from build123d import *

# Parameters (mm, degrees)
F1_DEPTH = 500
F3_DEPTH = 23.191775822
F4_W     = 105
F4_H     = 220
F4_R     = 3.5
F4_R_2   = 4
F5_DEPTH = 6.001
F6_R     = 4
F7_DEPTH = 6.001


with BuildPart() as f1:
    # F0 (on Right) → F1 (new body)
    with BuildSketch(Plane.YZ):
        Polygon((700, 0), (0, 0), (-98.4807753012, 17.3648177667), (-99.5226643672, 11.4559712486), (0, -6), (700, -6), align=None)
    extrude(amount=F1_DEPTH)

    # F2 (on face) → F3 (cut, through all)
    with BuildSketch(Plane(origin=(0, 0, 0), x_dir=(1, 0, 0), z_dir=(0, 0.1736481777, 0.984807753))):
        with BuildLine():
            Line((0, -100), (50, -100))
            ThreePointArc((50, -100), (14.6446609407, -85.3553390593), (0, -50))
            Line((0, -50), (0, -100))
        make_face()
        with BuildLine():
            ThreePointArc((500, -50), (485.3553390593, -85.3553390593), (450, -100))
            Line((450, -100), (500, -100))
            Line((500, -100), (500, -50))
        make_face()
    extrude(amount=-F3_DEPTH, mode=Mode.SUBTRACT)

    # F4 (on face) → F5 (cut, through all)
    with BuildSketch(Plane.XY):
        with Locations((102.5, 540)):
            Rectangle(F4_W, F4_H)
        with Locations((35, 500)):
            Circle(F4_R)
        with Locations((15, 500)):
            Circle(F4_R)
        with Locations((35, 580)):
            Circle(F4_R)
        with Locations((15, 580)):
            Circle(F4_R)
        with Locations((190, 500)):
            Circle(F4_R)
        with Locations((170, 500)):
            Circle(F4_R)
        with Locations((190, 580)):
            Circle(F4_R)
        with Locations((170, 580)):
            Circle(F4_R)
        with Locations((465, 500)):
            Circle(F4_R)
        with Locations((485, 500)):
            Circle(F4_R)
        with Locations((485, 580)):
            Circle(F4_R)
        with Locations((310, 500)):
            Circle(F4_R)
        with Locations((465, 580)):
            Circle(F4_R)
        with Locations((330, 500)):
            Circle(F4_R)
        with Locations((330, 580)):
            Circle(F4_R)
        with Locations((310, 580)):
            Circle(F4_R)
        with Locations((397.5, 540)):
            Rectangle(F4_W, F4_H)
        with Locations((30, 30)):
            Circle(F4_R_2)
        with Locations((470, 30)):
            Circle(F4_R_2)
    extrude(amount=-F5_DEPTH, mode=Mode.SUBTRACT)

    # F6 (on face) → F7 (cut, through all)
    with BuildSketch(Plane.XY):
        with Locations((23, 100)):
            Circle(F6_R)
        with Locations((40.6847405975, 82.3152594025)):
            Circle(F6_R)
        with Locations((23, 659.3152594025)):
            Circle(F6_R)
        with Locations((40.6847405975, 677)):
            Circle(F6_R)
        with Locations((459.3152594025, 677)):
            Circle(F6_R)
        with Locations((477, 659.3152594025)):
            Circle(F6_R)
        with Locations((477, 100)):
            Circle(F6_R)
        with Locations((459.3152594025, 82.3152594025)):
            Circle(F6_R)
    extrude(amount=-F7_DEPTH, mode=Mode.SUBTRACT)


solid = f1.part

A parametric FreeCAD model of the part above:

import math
import FreeCAD as App
import Part
import Sketcher
Q = App.Units.Quantity

doc = App.newDocument("Part")
params = doc.addObject("Spreadsheet::Sheet", "Params")
for row, (alias, value) in enumerate([
    ("sketch1_width", "700 mm"),
    ("sketch1_height", "6 mm"),
    ("sketch1_length", "100 mm"),
    ("sketch1_length2", "6 mm"),
    ("pad1_length", "500 mm"),
    ("sketch2_radius", "50 mm"),
    ("sketch3_diameter", "7 mm"),
    ("sketch3_diameter2", "8 mm"),
    ("sketch3_width", "105 mm"),
    ("sketch3_height", "220 mm"),
    ("sketch4_diameter", "8 mm"),
], start=1):
    params.set(f"A{row}", alias)
    params.set(f"B{row}", "=" + value)
    params.setAlias(f"B{row}", alias)

body = doc.addObject("PartDesign::Body", "Body")

# Sketch on YZ plane
sketch1 = body.newObject("Sketcher::SketchObject", "Sketch")
sketch1.AttachmentSupport = (doc.getObject("YZ_Plane"), [""])
sketch1.MapMode = "FlatFace"
sketch1.addGeometry([
    Part.LineSegment(App.Vector(700, 0, 0), App.Vector(0, 0, 0)),  # 0
    Part.LineSegment(App.Vector(0, 0, 0), App.Vector(-98.480775, 17.364818, 0)),  # 1
    Part.LineSegment(App.Vector(-98.480775, 17.364818, 0), App.Vector(-99.522664, 11.455971, 0)),  # 2
    Part.LineSegment(App.Vector(-99.522664, 11.455971, 0), App.Vector(0, -6, 0)),  # 3
    Part.LineSegment(App.Vector(0, -6, 0), App.Vector(700, -6, 0)),  # 4
    Part.LineSegment(App.Vector(700, -6, 0), App.Vector(700, 0, 0)),  # 5
], False)
sketch1.addConstraint([
    Sketcher.Constraint("Coincident", 0, 2, 1, 1),
    Sketcher.Constraint("Coincident", 1, 2, 2, 1),
    Sketcher.Constraint("Coincident", 2, 2, 3, 1),
    Sketcher.Constraint("Coincident", 3, 2, 4, 1),
    Sketcher.Constraint("Coincident", 4, 2, 5, 1),
    Sketcher.Constraint("Coincident", 5, 2, 0, 1),
    Sketcher.Constraint("Horizontal", 0),
    Sketcher.Constraint("Horizontal", 4),
    Sketcher.Constraint("Vertical", 5),
    Sketcher.Constraint("Coincident", 0, 2, -1, 1),
    Sketcher.Constraint("PointOnObject", 3, 2, -2),
    Sketcher.Constraint("Perpendicular", 1, 2),
    Sketcher.Constraint("DistanceX", 0, 2, 0, 1, 700.0),
    Sketcher.Constraint("DistanceY", 5, 1, 5, 2, 6.0),
    Sketcher.Constraint("Angle", 1, Q("170 deg")),
    Sketcher.Constraint("Distance", 1, 100.0),
    Sketcher.Constraint("Distance", 2, 6.0),
])
sketch1.setExpression("Constraints[12]", "Params.sketch1_width")
sketch1.setExpression("Constraints[13]", "Params.sketch1_height")
sketch1.setExpression("Constraints[15]", "Params.sketch1_length")
sketch1.setExpression("Constraints[16]", "Params.sketch1_length2")
pad1 = body.newObject("PartDesign::Pad", "Pad")
pad1.Profile = sketch1
pad1.setExpression("Length", "Params.pad1_length")

# Sketch on an angled plane
sketch2 = body.newObject("Sketcher::SketchObject", "Sketch001")
sketch2.Placement = App.Placement(App.Vector(0, 0, 0), App.Rotation(App.Vector(1, 0, 0), App.Vector(0, 0.984807753, -0.173648178), App.Vector(0, 0.173648178, 0.984807753), "ZXY"))
sketch2.addGeometry([
    Part.LineSegment(App.Vector(0, -100, 0), App.Vector(50, -100, 0)),  # 0
    Part.ArcOfCircle(Part.Circle(App.Vector(50, -50, 0), App.Vector(0, 0, 1), 50), math.radians(180), math.radians(270)),  # 1
    Part.LineSegment(App.Vector(0, -50, 0), App.Vector(0, -100, 0)),  # 2
    Part.ArcOfCircle(Part.Circle(App.Vector(450, -50, 0), App.Vector(0, 0, 1), 50), math.radians(-90), math.radians(0)),  # 3
    Part.LineSegment(App.Vector(450, -100, 0), App.Vector(500, -100, 0)),  # 4
    Part.LineSegment(App.Vector(500, -100, 0), App.Vector(500, -50, 0)),  # 5
], False)
sketch2.addConstraint([
    Sketcher.Constraint("Tangent", 0, 2, 1, 2),
    Sketcher.Constraint("Tangent", 1, 1, 2, 1),
    Sketcher.Constraint("Coincident", 2, 2, 0, 1),
    Sketcher.Constraint("Tangent", 3, 1, 4, 1),
    Sketcher.Constraint("Coincident", 4, 2, 5, 1),
    Sketcher.Constraint("Tangent", 5, 2, 3, 2),
    Sketcher.Constraint("Horizontal", 0),
    Sketcher.Constraint("Vertical", 2),
    Sketcher.Constraint("Horizontal", 4),
    Sketcher.Constraint("Vertical", 5),
    Sketcher.Constraint("Equal", 1, 3),
    Sketcher.Constraint("PointOnObject", 1, 1, -2),
    Sketcher.Constraint("Horizontal", 1, 3, 3, 3),
    Sketcher.Constraint("Radius", 1, 50.0),
    Sketcher.Constraint("DistanceY", 1, 3, -1, 1, 50.0),
    Sketcher.Constraint("DistanceX", -1, 1, 3, 3, 450.0),
])
sketch2.setExpression("Constraints[13]", "Params.sketch2_radius")
pocket1 = body.newObject("PartDesign::Pocket", "Pocket")
pocket1.Profile = sketch2
pocket1.Type = "ThroughAll"

# Sketch on XY plane
sketch3 = body.newObject("Sketcher::SketchObject", "Sketch002")
sketch3.AttachmentSupport = (doc.getObject("XY_Plane"), [""])
sketch3.MapMode = "FlatFace"
sketch3.addGeometry([
    Part.LineSegment(App.Vector(50, 650, 0), App.Vector(50, 430, 0)),  # 0
    Part.LineSegment(App.Vector(50, 430, 0), App.Vector(155, 430, 0)),  # 1
    Part.LineSegment(App.Vector(155, 430, 0), App.Vector(155, 650, 0)),  # 2
    Part.LineSegment(App.Vector(155, 650, 0), App.Vector(50, 650, 0)),  # 3
    Part.Circle(App.Vector(35, 500, 0), App.Vector(0, 0, 1), 3.5),  # 4
    Part.Circle(App.Vector(15, 500, 0), App.Vector(0, 0, 1), 3.5),  # 5
    Part.Circle(App.Vector(35, 580, 0), App.Vector(0, 0, 1), 3.5),  # 6
    Part.Circle(App.Vector(15, 580, 0), App.Vector(0, 0, 1), 3.5),  # 7
    Part.Circle(App.Vector(190, 500, 0), App.Vector(0, 0, 1), 3.5),  # 8
    Part.Circle(App.Vector(170, 500, 0), App.Vector(0, 0, 1), 3.5),  # 9
    Part.Circle(App.Vector(190, 580, 0), App.Vector(0, 0, 1), 3.5),  # 10
    Part.Circle(App.Vector(170, 580, 0), App.Vector(0, 0, 1), 3.5),  # 11
    Part.Circle(App.Vector(465, 500, 0), App.Vector(0, 0, 1), 3.5),  # 12
    Part.Circle(App.Vector(485, 500, 0), App.Vector(0, 0, 1), 3.5),  # 13
    Part.Circle(App.Vector(485, 580, 0), App.Vector(0, 0, 1), 3.5),  # 14
    Part.Circle(App.Vector(310, 500, 0), App.Vector(0, 0, 1), 3.5),  # 15
    Part.Circle(App.Vector(465, 580, 0), App.Vector(0, 0, 1), 3.5),  # 16
    Part.Circle(App.Vector(330, 500, 0), App.Vector(0, 0, 1), 3.5),  # 17
    Part.Circle(App.Vector(330, 580, 0), App.Vector(0, 0, 1), 3.5),  # 18
    Part.Circle(App.Vector(310, 580, 0), App.Vector(0, 0, 1), 3.5),  # 19
    Part.LineSegment(App.Vector(345, 650, 0), App.Vector(345, 430, 0)),  # 20
    Part.LineSegment(App.Vector(345, 430, 0), App.Vector(450, 430, 0)),  # 21
    Part.LineSegment(App.Vector(450, 430, 0), App.Vector(450, 650, 0)),  # 22
    Part.LineSegment(App.Vector(450, 650, 0), App.Vector(345, 650, 0)),  # 23
    Part.Circle(App.Vector(30, 30, 0), App.Vector(0, 0, 1), 4),  # 24
    Part.Circle(App.Vector(470, 30, 0), App.Vector(0, 0, 1), 4),  # 25
], False)
sketch3.addConstraint([
    Sketcher.Constraint("Coincident", 0, 2, 1, 1),
    Sketcher.Constraint("Coincident", 1, 2, 2, 1),
    Sketcher.Constraint("Coincident", 2, 2, 3, 1),
    Sketcher.Constraint("Coincident", 3, 2, 0, 1),
    Sketcher.Constraint("Coincident", 20, 2, 21, 1),
    Sketcher.Constraint("Coincident", 21, 2, 22, 1),
    Sketcher.Constraint("Coincident", 22, 2, 23, 1),
    Sketcher.Constraint("Coincident", 23, 2, 20, 1),
    Sketcher.Constraint("Vertical", 0),
    Sketcher.Constraint("Horizontal", 1),
    Sketcher.Constraint("Vertical", 2),
    Sketcher.Constraint("Horizontal", 3),
    Sketcher.Constraint("Vertical", 20),
    Sketcher.Constraint("Horizontal", 21),
    Sketcher.Constraint("Vertical", 22),
    Sketcher.Constraint("Horizontal", 23),
    Sketcher.Constraint("Equal", 4, 5),
    Sketcher.Constraint("Equal", 5, 6),
    Sketcher.Constraint("Equal", 6, 7),
    Sketcher.Constraint("Equal", 7, 8),
    Sketcher.Constraint("Equal", 8, 9),
    Sketcher.Constraint("Equal", 9, 10),
    Sketcher.Constraint("Equal", 10, 11),
    Sketcher.Constraint("Equal", 11, 12),
    Sketcher.Constraint("Equal", 12, 13),
    Sketcher.Constraint("Equal", 13, 14),
    Sketcher.Constraint("Equal", 14, 15),
    Sketcher.Constraint("Equal", 15, 16),
    Sketcher.Constraint("Equal", 16, 17),
    Sketcher.Constraint("Equal", 17, 18),
    Sketcher.Constraint("Equal", 18, 19),
    Sketcher.Constraint("Equal", 24, 25),
    Sketcher.Constraint("Horizontal", 4, 3, 5, 3),
    Sketcher.Constraint("Horizontal", 6, 3, 7, 3),
    Sketcher.Constraint("Horizontal", 5, 3, 8, 3),
    Sketcher.Constraint("Horizontal", 8, 3, 9, 3),
    Sketcher.Constraint("Horizontal", 7, 3, 10, 3),
    Sketcher.Constraint("Horizontal", 10, 3, 11, 3),
    Sketcher.Constraint("Horizontal", 9, 3, 12, 3),
    Sketcher.Constraint("Horizontal", 12, 3, 13, 3),
    Sketcher.Constraint("Horizontal", 11, 3, 14, 3),
    Sketcher.Constraint("Horizontal", 13, 3, 15, 3),
    Sketcher.Constraint("Horizontal", 14, 3, 16, 3),
    Sketcher.Constraint("Horizontal", 15, 3, 17, 3),
    Sketcher.Constraint("Horizontal", 16, 3, 18, 3),
    Sketcher.Constraint("Horizontal", 18, 3, 19, 3),
    Sketcher.Constraint("Horizontal", 24, 3, 25, 3),
    Sketcher.Constraint("Horizontal", 1, 2, 20, 2),
    Sketcher.Constraint("Horizontal", 3, 2, 22, 2),
    Sketcher.Constraint("Vertical", 4, 3, 6, 3),
    Sketcher.Constraint("Vertical", 5, 3, 7, 3),
    Sketcher.Constraint("Vertical", 8, 3, 10, 3),
    Sketcher.Constraint("Vertical", 9, 3, 11, 3),
    Sketcher.Constraint("Vertical", 13, 3, 14, 3),
    Sketcher.Constraint("Vertical", 12, 3, 16, 3),
    Sketcher.Constraint("Vertical", 17, 3, 18, 3),
    Sketcher.Constraint("Vertical", 15, 3, 19, 3),
    Sketcher.Constraint("Equal", 3, 21),
    Sketcher.Constraint("Diameter", 4, 7.0),
    Sketcher.Constraint("Diameter", 24, 8.0),
    Sketcher.Constraint("DistanceX", 1, 1, 1, 2, 105.0),
    Sketcher.Constraint("DistanceY", 0, 2, 0, 1, 220.0),
    Sketcher.Constraint("DistanceX", -1, 1, 4, 3, 35.0),
    Sketcher.Constraint("DistanceY", -1, 1, 4, 3, 500.0),
    Sketcher.Constraint("DistanceX", -1, 1, 5, 3, 15.0),
    Sketcher.Constraint("DistanceY", -1, 1, 6, 3, 580.0),
    Sketcher.Constraint("DistanceX", -1, 1, 8, 3, 190.0),
    Sketcher.Constraint("DistanceX", -1, 1, 9, 3, 170.0),
    Sketcher.Constraint("DistanceX", -1, 1, 12, 3, 465.0),
    Sketcher.Constraint("DistanceX", -1, 1, 13, 3, 485.0),
    Sketcher.Constraint("DistanceX", -1, 1, 15, 3, 310.0),
    Sketcher.Constraint("DistanceX", -1, 1, 17, 3, 330.0),
    Sketcher.Constraint("DistanceX", -1, 1, 24, 3, 30.0),
    Sketcher.Constraint("DistanceY", -1, 1, 24, 3, 30.0),
    Sketcher.Constraint("DistanceX", -1, 1, 25, 3, 470.0),
    Sketcher.Constraint("DistanceX", -1, 1, 0, 2, 50.0),
    Sketcher.Constraint("DistanceY", -1, 1, 0, 2, 430.0),
    Sketcher.Constraint("DistanceX", -1, 1, 20, 2, 345.0),
])
sketch3.setExpression("Constraints[58]", "Params.sketch3_diameter")
sketch3.setExpression("Constraints[59]", "Params.sketch3_diameter2")
sketch3.setExpression("Constraints[60]", "Params.sketch3_width")
sketch3.setExpression("Constraints[61]", "Params.sketch3_height")
pocket2 = body.newObject("PartDesign::Pocket", "Pocket001")
pocket2.Profile = sketch3
pocket2.Type = "ThroughAll"

# Sketch on XY plane
sketch4 = body.newObject("Sketcher::SketchObject", "Sketch003")
sketch4.AttachmentSupport = (doc.getObject("XY_Plane"), [""])
sketch4.MapMode = "FlatFace"
sketch4.addGeometry([
    Part.Circle(App.Vector(23, 100, 0), App.Vector(0, 0, 1), 4),  # 0
    Part.Circle(App.Vector(40.684741, 82.315259, 0), App.Vector(0, 0, 1), 4),  # 1
    Part.Circle(App.Vector(23, 659.315259, 0), App.Vector(0, 0, 1), 4),  # 2
    Part.Circle(App.Vector(40.684741, 677, 0), App.Vector(0, 0, 1), 4),  # 3
    Part.Circle(App.Vector(459.315259, 677, 0), App.Vector(0, 0, 1), 4),  # 4
    Part.Circle(App.Vector(477, 659.315259, 0), App.Vector(0, 0, 1), 4),  # 5
    Part.Circle(App.Vector(477, 100, 0), App.Vector(0, 0, 1), 4),  # 6
    Part.Circle(App.Vector(459.315259, 82.315259, 0), App.Vector(0, 0, 1), 4),  # 7
], False)
sketch4.addConstraint([
    Sketcher.Constraint("Equal", 0, 1),
    Sketcher.Constraint("Equal", 1, 2),
    Sketcher.Constraint("Equal", 2, 3),
    Sketcher.Constraint("Equal", 3, 4),
    Sketcher.Constraint("Equal", 4, 5),
    Sketcher.Constraint("Equal", 5, 6),
    Sketcher.Constraint("Equal", 6, 7),
    Sketcher.Constraint("Horizontal", 3, 3, 4, 3),
    Sketcher.Constraint("Horizontal", 2, 3, 5, 3),
    Sketcher.Constraint("Horizontal", 0, 3, 6, 3),
    Sketcher.Constraint("Horizontal", 1, 3, 7, 3),
    Sketcher.Constraint("Vertical", 0, 3, 2, 3),
    Sketcher.Constraint("Vertical", 1, 3, 3, 3),
    Sketcher.Constraint("Vertical", 5, 3, 6, 3),
    Sketcher.Constraint("Vertical", 4, 3, 7, 3),
    Sketcher.Constraint("Diameter", 0, 8.0),
    Sketcher.Constraint("DistanceX", -1, 1, 0, 3, 23.0),
    Sketcher.Constraint("DistanceY", -1, 1, 0, 3, 100.0),
    Sketcher.Constraint("DistanceY", -1, 1, 3, 3, 677.0),
    Sketcher.Constraint("DistanceX", -1, 1, 5, 3, 477.0),
    Sketcher.Constraint("DistanceY", 1, 3, 2, 3, 577.0),
    Sketcher.Constraint("DistanceX", -1, 1, 1, 3, 40.684741),
    Sketcher.Constraint("DistanceY", -1, 1, 1, 3, 82.315259),
    Sketcher.Constraint("DistanceX", -1, 1, 4, 3, 459.315259),
])
sketch4.setExpression("Constraints[15]", "Params.sketch4_diameter")
pocket3 = body.newObject("PartDesign::Pocket", "Pocket002")
pocket3.Profile = sketch4
pocket3.Type = "ThroughAll"

doc.recompute()
